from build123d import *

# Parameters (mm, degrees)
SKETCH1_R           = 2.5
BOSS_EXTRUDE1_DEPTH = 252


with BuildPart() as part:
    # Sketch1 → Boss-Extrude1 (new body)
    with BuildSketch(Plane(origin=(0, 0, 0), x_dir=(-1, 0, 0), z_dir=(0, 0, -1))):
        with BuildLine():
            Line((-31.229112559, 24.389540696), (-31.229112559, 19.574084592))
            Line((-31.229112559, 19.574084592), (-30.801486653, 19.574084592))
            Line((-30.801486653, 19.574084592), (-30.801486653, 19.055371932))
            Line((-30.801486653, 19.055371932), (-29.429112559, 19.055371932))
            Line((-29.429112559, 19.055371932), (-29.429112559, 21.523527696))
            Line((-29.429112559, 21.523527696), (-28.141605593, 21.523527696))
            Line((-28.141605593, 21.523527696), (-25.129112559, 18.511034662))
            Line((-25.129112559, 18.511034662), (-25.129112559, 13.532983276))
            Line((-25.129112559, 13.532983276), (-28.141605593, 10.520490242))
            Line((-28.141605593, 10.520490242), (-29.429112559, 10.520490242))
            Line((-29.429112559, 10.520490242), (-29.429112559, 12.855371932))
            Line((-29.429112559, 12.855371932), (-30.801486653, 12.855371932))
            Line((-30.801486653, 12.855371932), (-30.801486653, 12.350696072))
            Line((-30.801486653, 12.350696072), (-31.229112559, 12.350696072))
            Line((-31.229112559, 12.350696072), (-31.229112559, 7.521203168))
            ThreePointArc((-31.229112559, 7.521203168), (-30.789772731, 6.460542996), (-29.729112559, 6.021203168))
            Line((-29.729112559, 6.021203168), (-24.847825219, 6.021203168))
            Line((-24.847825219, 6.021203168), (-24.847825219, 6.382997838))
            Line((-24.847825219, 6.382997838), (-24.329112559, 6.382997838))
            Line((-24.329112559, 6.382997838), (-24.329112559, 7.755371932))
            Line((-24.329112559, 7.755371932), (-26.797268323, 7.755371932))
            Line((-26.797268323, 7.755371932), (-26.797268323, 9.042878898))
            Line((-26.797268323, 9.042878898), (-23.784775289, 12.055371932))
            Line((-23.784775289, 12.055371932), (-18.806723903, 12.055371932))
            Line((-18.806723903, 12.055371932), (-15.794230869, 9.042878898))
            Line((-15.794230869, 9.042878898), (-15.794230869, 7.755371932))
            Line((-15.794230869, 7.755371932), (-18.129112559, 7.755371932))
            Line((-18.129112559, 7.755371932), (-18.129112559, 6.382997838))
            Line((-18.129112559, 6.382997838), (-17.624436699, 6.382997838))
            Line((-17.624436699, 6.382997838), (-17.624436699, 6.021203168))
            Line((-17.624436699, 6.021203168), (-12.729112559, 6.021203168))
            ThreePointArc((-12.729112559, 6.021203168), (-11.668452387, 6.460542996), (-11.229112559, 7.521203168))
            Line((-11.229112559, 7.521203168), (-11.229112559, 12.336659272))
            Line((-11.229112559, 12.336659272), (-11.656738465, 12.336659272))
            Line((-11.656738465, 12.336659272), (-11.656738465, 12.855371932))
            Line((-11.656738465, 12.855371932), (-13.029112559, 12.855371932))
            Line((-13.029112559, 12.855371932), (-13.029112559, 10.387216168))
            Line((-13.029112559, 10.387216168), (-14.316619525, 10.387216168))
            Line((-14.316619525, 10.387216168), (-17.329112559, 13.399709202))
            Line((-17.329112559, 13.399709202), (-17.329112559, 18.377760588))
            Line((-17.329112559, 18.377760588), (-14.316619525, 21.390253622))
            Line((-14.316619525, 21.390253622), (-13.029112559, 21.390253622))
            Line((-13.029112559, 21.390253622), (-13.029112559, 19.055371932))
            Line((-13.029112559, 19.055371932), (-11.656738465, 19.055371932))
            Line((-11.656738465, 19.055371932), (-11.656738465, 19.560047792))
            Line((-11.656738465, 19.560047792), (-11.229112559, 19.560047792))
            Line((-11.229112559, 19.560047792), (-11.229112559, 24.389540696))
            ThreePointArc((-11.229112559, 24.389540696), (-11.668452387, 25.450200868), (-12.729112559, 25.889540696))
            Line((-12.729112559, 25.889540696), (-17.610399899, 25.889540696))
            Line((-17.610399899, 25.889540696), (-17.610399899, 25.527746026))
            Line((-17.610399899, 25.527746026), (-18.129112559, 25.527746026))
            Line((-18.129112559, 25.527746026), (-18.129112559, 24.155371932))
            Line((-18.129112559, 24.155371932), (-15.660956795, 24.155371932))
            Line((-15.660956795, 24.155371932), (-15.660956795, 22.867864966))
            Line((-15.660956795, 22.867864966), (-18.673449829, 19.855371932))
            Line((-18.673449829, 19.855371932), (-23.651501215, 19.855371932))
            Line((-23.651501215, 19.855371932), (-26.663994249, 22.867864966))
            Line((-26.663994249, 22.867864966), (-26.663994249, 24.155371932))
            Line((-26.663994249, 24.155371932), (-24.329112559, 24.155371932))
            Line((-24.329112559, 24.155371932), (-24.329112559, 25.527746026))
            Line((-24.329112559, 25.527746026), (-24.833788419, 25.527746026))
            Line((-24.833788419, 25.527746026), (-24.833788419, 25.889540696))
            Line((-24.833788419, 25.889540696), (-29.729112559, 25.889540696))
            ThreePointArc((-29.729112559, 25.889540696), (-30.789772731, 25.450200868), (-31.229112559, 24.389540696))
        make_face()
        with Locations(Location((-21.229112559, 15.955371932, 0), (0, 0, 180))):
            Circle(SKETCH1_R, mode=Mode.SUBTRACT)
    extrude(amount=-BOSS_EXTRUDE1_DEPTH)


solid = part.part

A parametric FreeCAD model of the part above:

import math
import FreeCAD as App
import Part
import Sketcher

V = App.Vector
Q = App.Units.Quantity

doc = App.newDocument("Part")
body = doc.addObject("PartDesign::Body", "Body")

sketch1 = doc.addObject("Sketcher::SketchObject", "Sketch")
body.addObject(sketch1)
sketch1.AttachmentSupport = (doc.XY_Plane, [""])
sketch1.MapMode = "FlatFace"
sketch1.addGeometry([
    Part.LineSegment(V(31.23, 24.39, 0), V(31.23, 19.57, 0)),
    Part.LineSegment(V(31.23, 19.57, 0), V(30.8, 19.57, 0)),
    Part.LineSegment(V(30.8, 19.57, 0), V(30.8, 19.06, 0)),
    Part.LineSegment(V(30.8, 19.06, 0), V(29.43, 19.06, 0)),
    Part.LineSegment(V(29.43, 19.06, 0), V(29.43, 21.52, 0)),
    Part.LineSegment(V(29.43, 21.52, 0), V(28.14, 21.52, 0)),
    Part.LineSegment(V(28.14, 21.52, 0), V(25.13, 18.51, 0)),
    Part.LineSegment(V(25.13, 18.51, 0), V(25.13, 13.53, 0)),
    Part.LineSegment(V(25.13, 13.53, 0), V(28.14, 10.52, 0)),
    Part.LineSegment(V(28.14, 10.52, 0), V(29.43, 10.52, 0)),
    Part.LineSegment(V(29.43, 10.52, 0), V(29.43, 12.86, 0)),
    Part.LineSegment(V(29.43, 12.86, 0), V(30.8, 12.86, 0)),
    Part.LineSegment(V(30.8, 12.86, 0), V(30.8, 12.35, 0)),
    Part.LineSegment(V(30.8, 12.35, 0), V(31.23, 12.35, 0)),
    Part.LineSegment(V(31.23, 12.35, 0), V(31.23, 7.52, 0)),
    Part.ArcOfCircle(Part.Circle(V(29.73, 7.52, 0), V(0, 0, 1), 1.5), math.radians(-90), math.radians(0)),
    Part.LineSegment(V(29.73, 6.02, 0), V(24.85, 6.02, 0)),
    Part.LineSegment(V(24.85, 6.02, 0), V(24.85, 6.38, 0)),
    Part.LineSegment(V(24.85, 6.38, 0), V(24.33, 6.38, 0)),
    Part.LineSegment(V(24.33, 6.38, 0), V(24.33, 7.76, 0)),
    Part.LineSegment(V(24.33, 7.76, 0), V(26.8, 7.76, 0)),
    Part.LineSegment(V(26.8, 7.76, 0), V(26.8, 9.04, 0)),
    Part.LineSegment(V(26.8, 9.04, 0), V(23.78, 12.06, 0)),
    Part.LineSegment(V(23.78, 12.06, 0), V(18.81, 12.06, 0)),
    Part.LineSegment(V(18.81, 12.06, 0), V(15.79, 9.04, 0)),
    Part.LineSegment(V(15.79, 9.04, 0), V(15.79, 7.76, 0)),
    Part.LineSegment(V(15.79, 7.76, 0), V(18.13, 7.76, 0)),
    Part.LineSegment(V(18.13, 7.76, 0), V(18.13, 6.38, 0)),
    Part.LineSegment(V(18.13, 6.38, 0), V(17.62, 6.38, 0)),
    Part.LineSegment(V(17.62, 6.38, 0), V(17.62, 6.02, 0)),
    Part.LineSegment(V(17.62, 6.02, 0), V(12.73, 6.02, 0)),
    Part.ArcOfCircle(Part.Circle(V(12.73, 7.52, 0), V(0, 0, 1), 1.5), math.radians(180), math.radians(270)),
    Part.LineSegment(V(11.23, 7.52, 0), V(11.23, 12.34, 0)),
    Part.LineSegment(V(11.23, 12.34, 0), V(11.66, 12.34, 0)),
    Part.LineSegment(V(11.66, 12.34, 0), V(11.66, 12.86, 0)),
    Part.LineSegment(V(11.66, 12.86, 0), V(13.03, 12.86, 0)),
    Part.LineSegment(V(13.03, 12.86, 0), V(13.03, 10.39, 0)),
    Part.LineSegment(V(13.03, 10.39, 0), V(14.32, 10.39, 0)),
    Part.LineSegment(V(14.32, 10.39, 0), V(17.33, 13.4, 0)),
    Part.LineSegment(V(17.33, 13.4, 0), V(17.33, 18.38, 0)),
    Part.LineSegment(V(17.33, 18.38, 0), V(14.32, 21.39, 0)),
    Part.LineSegment(V(14.32, 21.39, 0), V(13.03, 21.39, 0)),
    Part.LineSegment(V(13.03, 21.39, 0), V(13.03, 19.06, 0)),
    Part.LineSegment(V(13.03, 19.06, 0), V(11.66, 19.06, 0)),
    Part.LineSegment(V(11.66, 19.06, 0), V(11.66, 19.56, 0)),
    Part.LineSegment(V(11.66, 19.56, 0), V(11.23, 19.56, 0)),
    Part.LineSegment(V(11.23, 19.56, 0), V(11.23, 24.39, 0)),
    Part.ArcOfCircle(Part.Circle(V(12.73, 24.39, 0), V(0, 0, 1), 1.5), math.radians(90), math.radians(180)),
    Part.LineSegment(V(12.73, 25.89, 0), V(17.61, 25.89, 0)),
    Part.LineSegment(V(17.61, 25.89, 0), V(17.61, 25.53, 0)),
    Part.LineSegment(V(17.61, 25.53, 0), V(18.13, 25.53, 0)),
    Part.LineSegment(V(18.13, 25.53, 0), V(18.13, 24.16, 0)),
    Part.LineSegment(V(18.13, 24.16, 0), V(15.66, 24.16, 0)),
    Part.LineSegment(V(15.66, 24.16, 0), V(15.66, 22.87, 0)),
    Part.LineSegment(V(15.66, 22.87, 0), V(18.67, 19.86, 0)),
    Part.LineSegment(V(18.67, 19.86, 0), V(23.65, 19.86, 0)),
    Part.LineSegment(V(23.65, 19.86, 0), V(26.66, 22.87, 0)),
    Part.LineSegment(V(26.66, 22.87, 0), V(26.66, 24.16, 0)),
    Part.LineSegment(V(26.66, 24.16, 0), V(24.33, 24.16, 0)),
    Part.LineSegment(V(24.33, 24.16, 0), V(24.33, 25.53, 0)),
    Part.LineSegment(V(24.33, 25.53, 0), V(24.83, 25.53, 0)),
    Part.LineSegment(V(24.83, 25.53, 0), V(24.83, 25.89, 0)),
    Part.LineSegment(V(24.83, 25.89, 0), V(29.73, 25.89, 0)),
    Part.ArcOfCircle(Part.Circle(V(29.73, 24.39, 0), V(0, 0, 1), 1.5), math.radians(0), math.radians(90)),
    Part.Circle(V(21.23, 15.96, 0), V(0, 0, 1), 2.5),
], False)
sketch1.addConstraint([
    Sketcher.Constraint("Coincident", 0, 2, 1, 1),
    Sketcher.Constraint("Coincident", 1, 2, 2, 1),
    Sketcher.Constraint("Coincident", 2, 2, 3, 1),
    Sketcher.Constraint("Coincident", 3, 2, 4, 1),
    Sketcher.Constraint("Coincident", 4, 2, 5, 1),
    Sketcher.Constraint("Coincident", 5, 2, 6, 1),
    Sketcher.Constraint("Coincident", 6, 2, 7, 1),
    Sketcher.Constraint("Coincident", 7, 2, 8, 1),
    Sketcher.Constraint("Coincident", 8, 2, 9, 1),
    Sketcher.Constraint("Coincident", 9, 2, 10, 1),
    Sketcher.Constraint("Coincident", 10, 2, 11, 1),
    Sketcher.Constraint("Coincident", 11, 2, 12, 1),
    Sketcher.Constraint("Coincident", 12, 2, 13, 1),
    Sketcher.Constraint("Coincident", 13, 2, 14, 1),
    Sketcher.Constraint("Tangent", 14, 2, 15, 2),
    Sketcher.Constraint("Tangent", 15, 1, 16, 1),
    Sketcher.Constraint("Coincident", 16, 2, 17, 1),
    Sketcher.Constraint("Coincident", 17, 2, 18, 1),
    Sketcher.Constraint("Coincident", 18, 2, 19, 1),
    Sketcher.Constraint("Coincident", 19, 2, 20, 1),
    Sketcher.Constraint("Coincident", 20, 2, 21, 1),
    Sketcher.Constraint("Coincident", 21, 2, 22, 1),
    Sketcher.Constraint("Coincident", 22, 2, 23, 1),
    Sketcher.Constraint("Coincident", 23, 2, 24, 1),
    Sketcher.Constraint("Coincident", 24, 2, 25, 1),
    Sketcher.Constraint("Coincident", 25, 2, 26, 1),
    Sketcher.Constraint("Coincident", 26, 2, 27, 1),
    Sketcher.Constraint("Coincident", 27, 2, 28, 1),
    Sketcher.Constraint("Coincident", 28, 2, 29, 1),
    Sketcher.Constraint("Coincident", 29, 2, 30, 1),
    Sketcher.Constraint("Tangent", 30, 2, 31, 2),
    Sketcher.Constraint("Tangent", 31, 1, 32, 1),
    Sketcher.Constraint("Coincident", 32, 2, 33, 1),
    Sketcher.Constraint("Coincident", 33, 2, 34, 1),
    Sketcher.Constraint("Coincident", 34, 2, 35, 1),
    Sketcher.Constraint("Coincident", 35, 2, 36, 1),
    Sketcher.Constraint("Coincident", 36, 2, 37, 1),
    Sketcher.Constraint("Coincident", 37, 2, 38, 1),
    Sketcher.Constraint("Coincident", 38, 2, 39, 1),
    Sketcher.Constraint("Coincident", 39, 2, 40, 1),
    Sketcher.Constraint("Coincident", 40, 2, 41, 1),
    Sketcher.Constraint("Coincident", 41, 2, 42, 1),
    Sketcher.Constraint("Coincident", 42, 2, 43, 1),
    Sketcher.Constraint("Coincident", 43, 2, 44, 1),
    Sketcher.Constraint("Coincident", 44, 2, 45, 1),
    Sketcher.Constraint("Coincident", 45, 2, 46, 1),
    Sketcher.Constraint("Tangent", 46, 2, 47, 2),
    Sketcher.Constraint("Tangent", 47, 1, 48, 1),
    Sketcher.Constraint("Coincident", 48, 2, 49, 1),
    Sketcher.Constraint("Coincident", 49, 2, 50, 1),
    Sketcher.Constraint("Coincident", 50, 2, 51, 1),
    Sketcher.Constraint("Coincident", 51, 2, 52, 1),
    Sketcher.Constraint("Coincident", 52, 2, 53, 1),
    Sketcher.Constraint("Coincident", 53, 2, 54, 1),
    Sketcher.Constraint("Coincident", 54, 2, 55, 1),
    Sketcher.Constraint("Coincident", 55, 2, 56, 1),
    Sketcher.Constraint("Coincident", 56, 2, 57, 1),
    Sketcher.Constraint("Coincident", 57, 2, 58, 1),
    Sketcher.Constraint("Coincident", 58, 2, 59, 1),
    Sketcher.Constraint("Coincident", 59, 2, 60, 1),
    Sketcher.Constraint("Coincident", 60, 2, 61, 1),
    Sketcher.Constraint("Coincident", 61, 2, 62, 1),
    Sketcher.Constraint("Tangent", 62, 2, 63, 2),
    Sketcher.Constraint("Tangent", 63, 1, 0, 1),
    Sketcher.Constraint("Vertical", 0),
    Sketcher.Constraint("Horizontal", 1),
    Sketcher.Constraint("Vertical", 2),
    Sketcher.Constraint("Horizontal", 3),
    Sketcher.Constraint("Vertical", 4),
    Sketcher.Constraint("Horizontal", 5),
    Sketcher.Constraint("Vertical", 7),
    Sketcher.Constraint("Horizontal", 9),
    Sketcher.Constraint("Vertical", 10),
    Sketcher.Constraint("Horizontal", 11),
    Sketcher.Constraint("Vertical", 12),
    Sketcher.Constraint("Horizontal", 13),
    Sketcher.Constraint("Vertical", 14),
    Sketcher.Constraint("Horizontal", 16),
    Sketcher.Constraint("Vertical", 17),
    Sketcher.Constraint("Horizontal", 18),
    Sketcher.Constraint("Vertical", 19),
    Sketcher.Constraint("Horizontal", 20),
    Sketcher.Constraint("Vertical", 21),
    Sketcher.Constraint("Horizontal", 23),
    Sketcher.Constraint("Vertical", 25),
    Sketcher.Constraint("Horizontal", 26),
    Sketcher.Constraint("Vertical", 27),
    Sketcher.Constraint("Horizontal", 28),
    Sketcher.Constraint("Vertical", 29),
    Sketcher.Constraint("Horizontal", 30),
    Sketcher.Constraint("Vertical", 32),
    Sketcher.Constraint("Horizontal", 33),
    Sketcher.Constraint("Vertical", 34),
    Sketcher.Constraint("Horizontal", 35),
    Sketcher.Constraint("Vertical", 36),
    Sketcher.Constraint("Horizontal", 37),
    Sketcher.Constraint("Vertical", 39),
    Sketcher.Constraint("Horizontal", 41),
    Sketcher.Constraint("Vertical", 42),
    Sketcher.Constraint("Horizontal", 43),
    Sketcher.Constraint("Vertical", 44),
    Sketcher.Constraint("Horizontal", 45),
    Sketcher.Constraint("Vertical", 46),
    Sketcher.Constraint("Horizontal", 48),
    Sketcher.Constraint("Vertical", 49),
    Sketcher.Constraint("Horizontal", 50),
    Sketcher.Constraint("Vertical", 51),
    Sketcher.Constraint("Horizontal", 52),
    Sketcher.Constraint("Vertical", 53),
    Sketcher.Constraint("Horizontal", 55),
    Sketcher.Constraint("Vertical", 57),
    Sketcher.Constraint("Horizontal", 58),
    Sketcher.Constraint("Vertical", 59),
    Sketcher.Constraint("Horizontal", 60),
    Sketcher.Constraint("Vertical", 61),
    Sketcher.Constraint("Horizontal", 62),
    Sketcher.Constraint("Equal", 15, 31),
    Sketcher.Constraint("Equal", 31, 47),
    Sketcher.Constraint("Equal", 47, 63),
    Sketcher.Constraint("Perpendicular", 6, 8),
    Sketcher.Constraint("Parallel", 8, 22),
    Sketcher.Constraint("Perpendicular", 22, 24),
    Sketcher.Constraint("Parallel", 24, 38),
    Sketcher.Constraint("Perpendicular", 38, 40),
    Sketcher.Constraint("Parallel", 40, 54),
    Sketcher.Constraint("Perpendicular", 54, 56),
    Sketcher.Constraint("Horizontal", 15, 3, 31, 3),
    Sketcher.Constraint("Horizontal", 47, 3, 63, 3),
    Sketcher.Constraint("Horizontal", 21, 2, 24, 2),
    Sketcher.Constraint("Horizontal", 20, 2, 25, 2),
    Sketcher.Constraint("Horizontal", 18, 2, 27, 2),
    Sketcher.Constraint("Horizontal", 11, 2, 34, 2),
    Sketcher.Constraint("Horizontal", 3, 2, 42, 2),
    Sketcher.Constraint("Horizontal", 53, 2, 56, 2),
    Sketcher.Constraint("Horizontal", 52, 2, 57, 2),
    Sketcher.Constraint("Horizontal", 50, 2, 59, 2),
    Sketcher.Constraint("Vertical", 31, 3, 47, 3),
    Sketcher.Constraint("Vertical", 15, 3, 63, 3),
    Sketcher.Constraint("Vertical", 5, 2, 8, 2),
    Sketcher.Constraint("Vertical", 4, 2, 9, 2),
    Sketcher.Constraint("Vertical", 2, 2, 11, 2),
    Sketcher.Constraint("Vertical", 37, 2, 40, 2),
    Sketcher.Constraint("Vertical", 36, 2, 41, 2),
    Sketcher.Constraint("Vertical", 34, 2, 43, 2),
    Sketcher.Constraint("Vertical", 27, 2, 50, 2),
    Sketcher.Constraint("Vertical", 19, 2, 58, 2),
    Sketcher.Constraint("Equal", 13, 33),
    Sketcher.Constraint("Equal", 11, 35),
    Sketcher.Constraint("Equal", 9, 37),
    Sketcher.Constraint("Equal", 16, 48),
    Sketcher.Constraint("Equal", 18, 50),
    Sketcher.Constraint("Equal", 20, 52),
    Sketcher.Constraint("Equal", 23, 55),
    Sketcher.Constraint("Equal", 26, 58),
    Sketcher.Constraint("Equal", 28, 60),
    Sketcher.Constraint("Equal", 50, 2),
    Sketcher.Constraint("Equal", 52, 4),
    Sketcher.Constraint("Equal", 55, 7),
    Sketcher.Constraint("Equal", 58, 10),
    Sketcher.Constraint("Equal", 60, 12),
    Sketcher.Constraint("Equal", 43, 19),
    Sketcher.Constraint("Equal", 41, 21),
    Sketcher.Constraint("Equal", 0, 32),
    Sketcher.Constraint("Equal", 2, 34),
    Sketcher.Constraint("Equal", 4, 36),
    Sketcher.Constraint("Equal", 7, 39),
    Sketcher.Constraint("Equal", 10, 42),
    Sketcher.Constraint("Equal", 12, 44),
    Sketcher.Constraint("Equal", 29, 49),
    Sketcher.Constraint("Equal", 27, 51),
    Sketcher.Constraint("Equal", 25, 53),
    Sketcher.Constraint("Equal", 6, 8),
    Sketcher.Constraint("Equal", 8, 22),
    Sketcher.Constraint("Diameter", 64, Q("5 mm")),
    Sketcher.Constraint("Radius", 15, Q("1.5 mm")),
    Sketcher.Constraint("DistanceX", 23, 2, 23, 1, Q("4.978051 mm")),
    Sketcher.Constraint("DistanceX", 26, 1, 26, 2, Q("2.334882 mm")),
    Sketcher.Constraint("DistanceX", -1, 1, 48, 2, Q("17.6104 mm")),
    Sketcher.Constraint("DistanceX", -1, 1, 55, 2, Q("23.651501 mm")),
    Sketcher.Constraint("Distance", 6, Q("4.260309 mm")),
    Sketcher.Constraint("DistanceX", 1, 2, 1, 1, Q("0.427626 mm")),
    Sketcher.Constraint("DistanceX", 3, 2, 3, 1, Q("1.372374 mm")),
    Sketcher.Constraint("DistanceX", 5, 2, 5, 1, Q("1.287507 mm")),
    Sketcher.Constraint("DistanceX", 16, 2, 16, 1, Q("4.881287 mm")),
    Sketcher.Constraint("DistanceX", 18, 2, 18, 1, Q("0.518713 mm")),
    Sketcher.Constraint("DistanceX", 28, 2, 28, 1, Q("0.504676 mm")),
    Sketcher.Constraint("DistanceY", 0, 2, 0, 1, Q("4.815456 mm")),
    Sketcher.Constraint("DistanceY", 17, 1, 17, 2, Q("0.361795 mm")),
    Sketcher.Constraint("DistanceY", -1, 1, 47, 3, Q("24.389541 mm")),
    Sketcher.Constraint("DistanceY", -1, 1, 64, 3, Q("15.955372 mm")),
    Sketcher.Constraint("DistanceX", -1, 1, 64, 3, Q("21.229113 mm")),
])
pad1 = doc.addObject("PartDesign::Pad", "Pad")
body.addObject(pad1)
pad1.Profile = sketch1
pad1.Length = 252

doc.recompute()
